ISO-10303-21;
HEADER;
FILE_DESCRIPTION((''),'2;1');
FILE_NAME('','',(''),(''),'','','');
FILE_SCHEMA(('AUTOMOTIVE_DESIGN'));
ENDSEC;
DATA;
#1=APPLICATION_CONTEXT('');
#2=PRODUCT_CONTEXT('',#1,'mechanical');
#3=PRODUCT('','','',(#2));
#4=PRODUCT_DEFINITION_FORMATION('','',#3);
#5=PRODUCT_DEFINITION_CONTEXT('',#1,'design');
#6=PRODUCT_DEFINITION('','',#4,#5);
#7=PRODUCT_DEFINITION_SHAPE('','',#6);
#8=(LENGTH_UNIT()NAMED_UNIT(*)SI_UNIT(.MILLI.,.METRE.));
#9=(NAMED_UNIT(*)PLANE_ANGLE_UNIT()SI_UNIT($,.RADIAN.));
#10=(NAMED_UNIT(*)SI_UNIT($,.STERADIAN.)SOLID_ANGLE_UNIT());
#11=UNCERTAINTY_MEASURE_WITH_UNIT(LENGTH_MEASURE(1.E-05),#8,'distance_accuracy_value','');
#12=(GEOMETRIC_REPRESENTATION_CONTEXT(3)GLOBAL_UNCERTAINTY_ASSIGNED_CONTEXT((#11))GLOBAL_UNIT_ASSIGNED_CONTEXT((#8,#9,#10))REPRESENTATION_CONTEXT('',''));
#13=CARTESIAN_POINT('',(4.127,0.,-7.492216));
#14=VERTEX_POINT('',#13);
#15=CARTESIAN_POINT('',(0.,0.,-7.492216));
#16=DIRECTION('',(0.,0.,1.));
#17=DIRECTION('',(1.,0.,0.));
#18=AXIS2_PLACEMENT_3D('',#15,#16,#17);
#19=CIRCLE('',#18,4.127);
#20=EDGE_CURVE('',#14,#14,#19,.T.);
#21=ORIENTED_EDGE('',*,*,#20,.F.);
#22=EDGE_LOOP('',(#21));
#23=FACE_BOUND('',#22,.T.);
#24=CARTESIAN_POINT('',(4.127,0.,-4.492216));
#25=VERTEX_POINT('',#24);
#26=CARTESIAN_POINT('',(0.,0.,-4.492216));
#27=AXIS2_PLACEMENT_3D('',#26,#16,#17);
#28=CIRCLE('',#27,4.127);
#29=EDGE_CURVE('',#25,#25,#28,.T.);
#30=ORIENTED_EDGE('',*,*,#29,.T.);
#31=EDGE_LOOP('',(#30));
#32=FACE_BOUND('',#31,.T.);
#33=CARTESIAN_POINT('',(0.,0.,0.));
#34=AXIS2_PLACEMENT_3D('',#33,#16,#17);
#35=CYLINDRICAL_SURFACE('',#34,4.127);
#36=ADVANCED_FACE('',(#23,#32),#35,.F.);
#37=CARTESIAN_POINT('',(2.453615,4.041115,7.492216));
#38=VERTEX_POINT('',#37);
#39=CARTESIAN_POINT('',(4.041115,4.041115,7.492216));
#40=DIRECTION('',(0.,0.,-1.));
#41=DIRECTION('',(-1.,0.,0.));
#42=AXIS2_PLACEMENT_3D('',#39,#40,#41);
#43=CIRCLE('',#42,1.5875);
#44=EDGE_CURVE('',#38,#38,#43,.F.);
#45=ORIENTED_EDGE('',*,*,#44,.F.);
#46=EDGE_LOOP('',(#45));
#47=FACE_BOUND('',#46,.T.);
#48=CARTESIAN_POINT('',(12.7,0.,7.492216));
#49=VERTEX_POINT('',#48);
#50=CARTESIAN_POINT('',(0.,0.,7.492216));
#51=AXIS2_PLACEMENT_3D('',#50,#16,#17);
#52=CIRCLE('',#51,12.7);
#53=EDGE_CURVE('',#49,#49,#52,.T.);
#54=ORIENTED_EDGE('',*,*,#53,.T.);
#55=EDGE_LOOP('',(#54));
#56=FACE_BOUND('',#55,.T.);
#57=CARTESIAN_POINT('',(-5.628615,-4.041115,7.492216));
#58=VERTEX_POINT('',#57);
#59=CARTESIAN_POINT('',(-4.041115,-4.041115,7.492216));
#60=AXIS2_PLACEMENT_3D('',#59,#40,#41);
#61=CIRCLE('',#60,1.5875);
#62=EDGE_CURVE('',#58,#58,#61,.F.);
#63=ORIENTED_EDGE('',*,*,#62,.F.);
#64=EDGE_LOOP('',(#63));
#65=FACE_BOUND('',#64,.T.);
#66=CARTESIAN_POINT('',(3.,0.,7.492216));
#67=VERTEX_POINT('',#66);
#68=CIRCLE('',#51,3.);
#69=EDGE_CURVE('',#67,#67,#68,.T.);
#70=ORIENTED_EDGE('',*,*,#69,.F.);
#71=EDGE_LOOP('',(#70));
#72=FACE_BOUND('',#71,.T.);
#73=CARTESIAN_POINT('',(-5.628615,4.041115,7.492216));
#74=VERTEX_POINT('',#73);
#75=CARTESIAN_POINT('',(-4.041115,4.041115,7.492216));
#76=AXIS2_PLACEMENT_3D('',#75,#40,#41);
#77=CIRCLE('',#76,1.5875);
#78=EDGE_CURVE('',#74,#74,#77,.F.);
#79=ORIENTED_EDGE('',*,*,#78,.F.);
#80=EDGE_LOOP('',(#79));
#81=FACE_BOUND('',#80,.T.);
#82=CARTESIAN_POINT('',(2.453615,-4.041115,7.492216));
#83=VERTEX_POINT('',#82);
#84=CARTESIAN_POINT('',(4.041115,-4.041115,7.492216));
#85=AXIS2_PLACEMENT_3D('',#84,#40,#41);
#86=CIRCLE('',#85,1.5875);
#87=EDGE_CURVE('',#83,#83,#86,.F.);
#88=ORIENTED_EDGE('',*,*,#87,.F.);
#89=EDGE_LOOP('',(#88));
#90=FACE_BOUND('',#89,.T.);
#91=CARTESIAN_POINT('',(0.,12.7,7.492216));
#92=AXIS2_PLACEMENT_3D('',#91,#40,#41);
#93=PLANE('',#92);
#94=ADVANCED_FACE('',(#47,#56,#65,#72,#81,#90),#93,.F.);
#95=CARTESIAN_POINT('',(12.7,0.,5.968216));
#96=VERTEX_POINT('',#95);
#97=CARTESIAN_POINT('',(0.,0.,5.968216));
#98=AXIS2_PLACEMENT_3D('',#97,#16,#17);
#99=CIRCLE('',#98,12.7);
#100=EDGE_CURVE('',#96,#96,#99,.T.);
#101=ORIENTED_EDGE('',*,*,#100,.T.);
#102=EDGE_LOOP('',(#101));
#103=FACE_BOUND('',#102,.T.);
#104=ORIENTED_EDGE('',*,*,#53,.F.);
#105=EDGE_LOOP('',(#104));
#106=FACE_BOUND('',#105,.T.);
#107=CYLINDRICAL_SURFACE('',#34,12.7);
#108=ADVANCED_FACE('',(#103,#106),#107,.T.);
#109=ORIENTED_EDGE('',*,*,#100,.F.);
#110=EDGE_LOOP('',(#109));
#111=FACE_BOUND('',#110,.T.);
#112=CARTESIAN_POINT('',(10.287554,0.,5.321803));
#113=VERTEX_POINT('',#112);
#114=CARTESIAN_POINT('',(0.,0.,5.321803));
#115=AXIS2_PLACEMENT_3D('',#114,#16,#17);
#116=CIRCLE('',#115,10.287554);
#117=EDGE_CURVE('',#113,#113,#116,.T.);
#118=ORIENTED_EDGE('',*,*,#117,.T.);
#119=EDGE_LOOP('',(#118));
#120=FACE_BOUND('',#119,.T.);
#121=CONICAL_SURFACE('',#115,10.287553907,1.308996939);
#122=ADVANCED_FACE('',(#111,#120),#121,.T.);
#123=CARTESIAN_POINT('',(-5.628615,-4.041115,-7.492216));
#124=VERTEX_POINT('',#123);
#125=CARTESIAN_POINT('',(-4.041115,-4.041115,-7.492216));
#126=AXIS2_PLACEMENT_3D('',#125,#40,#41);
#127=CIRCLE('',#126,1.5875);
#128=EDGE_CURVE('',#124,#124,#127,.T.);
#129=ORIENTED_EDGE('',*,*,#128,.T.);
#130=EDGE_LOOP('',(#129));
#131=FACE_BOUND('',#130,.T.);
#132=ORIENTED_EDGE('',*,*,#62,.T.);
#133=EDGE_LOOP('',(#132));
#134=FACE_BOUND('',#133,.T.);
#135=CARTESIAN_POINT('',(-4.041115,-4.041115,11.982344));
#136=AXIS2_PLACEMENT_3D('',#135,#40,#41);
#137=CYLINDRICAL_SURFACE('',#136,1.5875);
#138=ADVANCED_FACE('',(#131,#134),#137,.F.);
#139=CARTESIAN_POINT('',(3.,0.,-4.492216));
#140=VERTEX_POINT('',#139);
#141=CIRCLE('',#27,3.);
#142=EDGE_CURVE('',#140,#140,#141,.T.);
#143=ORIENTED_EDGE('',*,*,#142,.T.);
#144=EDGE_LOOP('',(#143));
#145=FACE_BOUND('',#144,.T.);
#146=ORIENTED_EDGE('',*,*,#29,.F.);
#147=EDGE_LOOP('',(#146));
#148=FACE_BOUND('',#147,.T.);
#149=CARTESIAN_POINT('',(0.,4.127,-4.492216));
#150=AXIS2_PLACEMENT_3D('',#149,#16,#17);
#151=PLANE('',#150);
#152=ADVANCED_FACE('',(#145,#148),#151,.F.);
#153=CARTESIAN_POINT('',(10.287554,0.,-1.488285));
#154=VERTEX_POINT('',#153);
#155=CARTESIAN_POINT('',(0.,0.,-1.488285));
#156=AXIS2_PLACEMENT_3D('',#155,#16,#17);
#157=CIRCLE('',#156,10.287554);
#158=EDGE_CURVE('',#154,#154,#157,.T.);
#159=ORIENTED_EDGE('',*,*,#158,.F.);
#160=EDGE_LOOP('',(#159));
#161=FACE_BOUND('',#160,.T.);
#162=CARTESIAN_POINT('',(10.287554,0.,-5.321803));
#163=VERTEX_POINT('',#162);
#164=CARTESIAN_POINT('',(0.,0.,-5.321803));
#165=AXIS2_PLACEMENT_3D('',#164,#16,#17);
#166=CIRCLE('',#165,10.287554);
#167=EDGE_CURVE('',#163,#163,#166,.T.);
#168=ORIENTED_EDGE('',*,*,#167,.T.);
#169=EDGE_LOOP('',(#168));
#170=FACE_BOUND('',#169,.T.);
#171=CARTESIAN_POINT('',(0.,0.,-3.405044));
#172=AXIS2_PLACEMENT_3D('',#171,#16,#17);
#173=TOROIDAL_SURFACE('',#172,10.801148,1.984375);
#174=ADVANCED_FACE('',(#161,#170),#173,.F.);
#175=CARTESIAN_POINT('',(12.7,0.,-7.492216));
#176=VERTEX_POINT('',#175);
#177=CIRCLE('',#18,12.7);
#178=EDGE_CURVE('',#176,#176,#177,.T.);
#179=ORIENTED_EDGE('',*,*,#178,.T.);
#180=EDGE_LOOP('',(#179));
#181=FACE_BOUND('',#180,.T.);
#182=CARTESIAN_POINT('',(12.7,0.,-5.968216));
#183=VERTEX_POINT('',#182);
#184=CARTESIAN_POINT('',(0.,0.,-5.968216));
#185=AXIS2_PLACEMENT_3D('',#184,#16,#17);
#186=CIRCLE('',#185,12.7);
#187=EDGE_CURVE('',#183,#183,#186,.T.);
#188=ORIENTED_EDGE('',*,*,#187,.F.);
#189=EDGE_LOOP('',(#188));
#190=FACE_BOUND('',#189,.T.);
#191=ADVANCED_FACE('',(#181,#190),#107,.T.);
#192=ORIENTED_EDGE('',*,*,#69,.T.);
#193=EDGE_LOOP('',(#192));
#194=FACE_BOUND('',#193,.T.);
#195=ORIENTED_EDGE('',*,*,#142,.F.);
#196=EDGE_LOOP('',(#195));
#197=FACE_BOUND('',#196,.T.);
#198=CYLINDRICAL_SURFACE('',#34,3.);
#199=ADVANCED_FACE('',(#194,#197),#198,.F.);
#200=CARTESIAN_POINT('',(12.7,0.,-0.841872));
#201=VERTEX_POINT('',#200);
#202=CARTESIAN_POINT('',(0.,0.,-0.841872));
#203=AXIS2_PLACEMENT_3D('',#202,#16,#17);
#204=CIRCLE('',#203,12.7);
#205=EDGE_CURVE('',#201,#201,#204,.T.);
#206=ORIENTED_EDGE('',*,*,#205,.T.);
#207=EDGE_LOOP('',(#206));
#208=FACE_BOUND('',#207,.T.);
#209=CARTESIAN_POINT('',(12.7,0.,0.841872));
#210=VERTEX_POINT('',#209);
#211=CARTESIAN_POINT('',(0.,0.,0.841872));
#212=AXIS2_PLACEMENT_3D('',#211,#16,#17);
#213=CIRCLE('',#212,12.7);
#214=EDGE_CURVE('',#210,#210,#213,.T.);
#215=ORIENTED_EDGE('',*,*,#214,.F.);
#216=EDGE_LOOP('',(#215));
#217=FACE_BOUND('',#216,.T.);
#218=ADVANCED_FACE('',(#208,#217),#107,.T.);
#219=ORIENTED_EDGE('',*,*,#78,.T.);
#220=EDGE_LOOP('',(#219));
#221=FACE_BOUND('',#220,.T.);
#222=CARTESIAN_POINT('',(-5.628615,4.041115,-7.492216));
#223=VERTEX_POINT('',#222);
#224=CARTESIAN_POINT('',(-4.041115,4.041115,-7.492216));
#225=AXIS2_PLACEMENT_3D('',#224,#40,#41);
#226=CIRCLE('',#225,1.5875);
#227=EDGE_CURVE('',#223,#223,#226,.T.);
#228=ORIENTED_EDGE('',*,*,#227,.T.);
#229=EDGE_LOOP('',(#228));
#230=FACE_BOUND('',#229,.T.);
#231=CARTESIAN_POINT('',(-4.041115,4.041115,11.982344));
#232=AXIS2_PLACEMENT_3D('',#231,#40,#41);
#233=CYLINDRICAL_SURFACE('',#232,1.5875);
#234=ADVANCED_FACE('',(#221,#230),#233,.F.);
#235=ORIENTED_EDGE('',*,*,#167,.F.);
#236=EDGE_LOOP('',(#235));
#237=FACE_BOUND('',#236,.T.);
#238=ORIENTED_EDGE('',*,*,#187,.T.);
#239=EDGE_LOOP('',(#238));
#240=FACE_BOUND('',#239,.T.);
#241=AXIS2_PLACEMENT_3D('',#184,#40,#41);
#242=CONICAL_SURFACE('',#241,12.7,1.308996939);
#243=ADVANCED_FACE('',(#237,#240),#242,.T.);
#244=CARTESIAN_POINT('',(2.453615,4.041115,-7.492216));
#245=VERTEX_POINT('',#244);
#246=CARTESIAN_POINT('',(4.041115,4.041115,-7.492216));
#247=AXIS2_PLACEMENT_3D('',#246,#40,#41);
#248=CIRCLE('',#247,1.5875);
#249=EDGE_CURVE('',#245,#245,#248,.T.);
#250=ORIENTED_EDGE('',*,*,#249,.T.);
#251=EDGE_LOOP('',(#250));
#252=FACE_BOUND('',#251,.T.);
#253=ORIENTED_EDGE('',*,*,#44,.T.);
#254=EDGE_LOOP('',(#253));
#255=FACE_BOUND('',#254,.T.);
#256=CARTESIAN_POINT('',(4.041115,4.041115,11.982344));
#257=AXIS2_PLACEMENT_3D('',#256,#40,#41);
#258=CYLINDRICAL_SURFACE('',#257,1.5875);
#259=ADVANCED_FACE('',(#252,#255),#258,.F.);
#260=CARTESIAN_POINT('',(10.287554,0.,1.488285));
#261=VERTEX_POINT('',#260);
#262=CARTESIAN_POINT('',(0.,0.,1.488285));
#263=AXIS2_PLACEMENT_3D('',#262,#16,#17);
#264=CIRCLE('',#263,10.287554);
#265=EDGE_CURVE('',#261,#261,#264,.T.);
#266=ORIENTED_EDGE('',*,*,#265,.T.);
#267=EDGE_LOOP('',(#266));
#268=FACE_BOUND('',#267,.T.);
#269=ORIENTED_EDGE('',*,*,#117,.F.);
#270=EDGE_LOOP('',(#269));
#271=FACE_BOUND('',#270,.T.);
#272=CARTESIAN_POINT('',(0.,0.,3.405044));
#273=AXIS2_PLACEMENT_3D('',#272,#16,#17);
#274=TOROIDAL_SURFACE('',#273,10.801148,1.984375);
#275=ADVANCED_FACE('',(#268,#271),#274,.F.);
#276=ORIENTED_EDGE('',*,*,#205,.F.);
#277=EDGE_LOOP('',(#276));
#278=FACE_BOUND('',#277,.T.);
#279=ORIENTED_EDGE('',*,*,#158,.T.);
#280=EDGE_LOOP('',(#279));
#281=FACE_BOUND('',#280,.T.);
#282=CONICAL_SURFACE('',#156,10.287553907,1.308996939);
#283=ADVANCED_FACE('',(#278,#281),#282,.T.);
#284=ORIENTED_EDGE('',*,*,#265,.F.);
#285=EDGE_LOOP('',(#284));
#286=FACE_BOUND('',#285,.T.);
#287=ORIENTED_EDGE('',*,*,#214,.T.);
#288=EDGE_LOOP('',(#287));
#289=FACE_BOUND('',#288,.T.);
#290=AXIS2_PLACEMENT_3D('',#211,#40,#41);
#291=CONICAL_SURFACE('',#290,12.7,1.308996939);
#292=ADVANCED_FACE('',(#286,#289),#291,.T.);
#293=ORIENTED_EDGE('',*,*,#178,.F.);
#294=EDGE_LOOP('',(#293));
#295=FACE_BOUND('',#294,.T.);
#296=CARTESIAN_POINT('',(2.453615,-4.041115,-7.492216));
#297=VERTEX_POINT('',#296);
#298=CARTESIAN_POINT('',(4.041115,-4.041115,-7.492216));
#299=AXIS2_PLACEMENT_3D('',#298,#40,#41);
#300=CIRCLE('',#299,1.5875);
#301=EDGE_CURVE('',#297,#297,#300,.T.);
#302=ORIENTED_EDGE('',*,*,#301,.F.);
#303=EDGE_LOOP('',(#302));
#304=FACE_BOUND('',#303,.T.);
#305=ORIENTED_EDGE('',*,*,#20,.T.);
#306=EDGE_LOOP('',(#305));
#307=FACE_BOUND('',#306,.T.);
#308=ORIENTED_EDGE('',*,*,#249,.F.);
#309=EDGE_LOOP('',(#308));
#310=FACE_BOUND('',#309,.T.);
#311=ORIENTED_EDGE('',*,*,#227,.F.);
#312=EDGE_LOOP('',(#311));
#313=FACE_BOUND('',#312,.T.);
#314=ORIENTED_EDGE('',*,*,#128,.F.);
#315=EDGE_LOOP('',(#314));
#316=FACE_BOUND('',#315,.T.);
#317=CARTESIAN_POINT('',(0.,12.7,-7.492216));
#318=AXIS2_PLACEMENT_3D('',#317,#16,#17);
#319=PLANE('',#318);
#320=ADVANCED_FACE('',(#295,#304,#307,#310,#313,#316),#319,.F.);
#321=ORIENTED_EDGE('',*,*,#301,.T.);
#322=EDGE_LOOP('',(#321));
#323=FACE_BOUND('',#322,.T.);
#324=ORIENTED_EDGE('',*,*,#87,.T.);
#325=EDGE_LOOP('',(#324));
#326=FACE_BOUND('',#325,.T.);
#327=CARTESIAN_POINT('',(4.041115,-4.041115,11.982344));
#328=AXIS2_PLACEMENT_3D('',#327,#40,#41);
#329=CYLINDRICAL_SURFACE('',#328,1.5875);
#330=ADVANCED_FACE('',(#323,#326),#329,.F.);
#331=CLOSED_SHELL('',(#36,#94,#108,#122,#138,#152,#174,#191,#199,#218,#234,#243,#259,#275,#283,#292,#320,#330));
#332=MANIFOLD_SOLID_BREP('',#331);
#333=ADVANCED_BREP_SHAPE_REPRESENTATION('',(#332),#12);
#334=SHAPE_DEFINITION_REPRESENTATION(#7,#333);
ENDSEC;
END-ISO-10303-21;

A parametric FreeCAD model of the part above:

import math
import FreeCAD as App
import Part
import Sketcher

V = App.Vector
Q = App.Units.Quantity

doc = App.newDocument("Part")
params = doc.addObject("Spreadsheet::Sheet", "Params")
for row, (alias, value) in enumerate([
    ("sketch1_radius", "0.078125 in"),
    ("sketch1_height", "0.06 in"),
    ("revolution_angle", "360 deg"),
    ("sketch2_diameter", "0.125 in"),
    ("pocket1_length", "14.984431 mm"),
], start=1):
    params.set(f"A{row}", alias)
    params.set(f"B{row}", "=" + value)
    params.setAlias(f"B{row}", alias)

body = doc.addObject("PartDesign::Body", "Body")

# Sketch on YZ plane
sketch1 = body.newObject("Sketcher::SketchObject", "Sketch")
sketch1.AttachmentSupport = (doc.getObject("YZ_Plane"), [""])
sketch1.MapMode = "FlatFace"
sketch1.addGeometry([
    Part.LineSegment(V(12.7, 0.8, 0), V(10.3, 1.5, 0)),  # 0
    Part.ArcOfCircle(Part.Circle(V(10.8, 3.4, 0), V(0, 0, 1), 2), math.radians(105), math.radians(255)),  # 1
    Part.LineSegment(V(10.3, 5.3, 0), V(12.7, 6, 0)),  # 2
    Part.LineSegment(V(12.7, 6, 0), V(12.7, 7.5, 0)),  # 3
    Part.LineSegment(V(12.7, 7.5, 0), V(3, 7.5, 0)),  # 4
    Part.LineSegment(V(3, 7.5, 0), V(3, -4.5, 0)),  # 5
    Part.LineSegment(V(3, -4.5, 0), V(4.1, -4.5, 0)),  # 6
    Part.LineSegment(V(4.1, -4.5, 0), V(4.1, -7.5, 0)),  # 7
    Part.LineSegment(V(4.1, -7.5, 0), V(12.7, -7.5, 0)),  # 8
    Part.LineSegment(V(12.7, -7.5, 0), V(12.7, -6, 0)),  # 9
    Part.LineSegment(V(12.7, -6, 0), V(10.3, -5.3, 0)),  # 10
    Part.ArcOfCircle(Part.Circle(V(10.8, -3.4, 0), V(0, 0, 1), 2), math.radians(105), math.radians(255)),  # 11
    Part.LineSegment(V(10.3, -1.5, 0), V(12.7, -0.8, 0)),  # 12
    Part.LineSegment(V(12.7, -0.8, 0), V(12.7, 0.8, 0)),  # 13
], False)
sketch1.addConstraint([
    Sketcher.Constraint("Tangent", 0, 2, 1, 2),
    Sketcher.Constraint("Tangent", 1, 1, 2, 1),
    Sketcher.Constraint("Coincident", 2, 2, 3, 1),
    Sketcher.Constraint("Coincident", 3, 2, 4, 1),
    Sketcher.Constraint("Coincident", 4, 2, 5, 1),
    Sketcher.Constraint("Coincident", 5, 2, 6, 1),
    Sketcher.Constraint("Coincident", 6, 2, 7, 1),
    Sketcher.Constraint("Coincident", 7, 2, 8, 1),
    Sketcher.Constraint("Coincident", 8, 2, 9, 1),
    Sketcher.Constraint("Coincident", 9, 2, 10, 1),
    Sketcher.Constraint("Tangent", 10, 2, 11, 2),
    Sketcher.Constraint("Tangent", 11, 1, 12, 1),
    Sketcher.Constraint("Coincident", 12, 2, 13, 1),
    Sketcher.Constraint("Coincident", 13, 2, 0, 1),
    Sketcher.Constraint("Vertical", 3),
    Sketcher.Constraint("Horizontal", 4),
    Sketcher.Constraint("Vertical", 5),
    Sketcher.Constraint("Horizontal", 6),
    Sketcher.Constraint("Vertical", 7),
    Sketcher.Constraint("Horizontal", 8),
    Sketcher.Constraint("Vertical", 9),
    Sketcher.Constraint("Vertical", 13),
    Sketcher.Constraint("Equal", 1, 11),
    Sketcher.Constraint("Symmetric", 1, 3, 11, 3, -1),
    Sketcher.Constraint("Symmetric", 3, 2, 8, 2, -1),
    Sketcher.Constraint("Parallel", 0, 10),
    Sketcher.Constraint("Parallel", 2, 12),
    Sketcher.Constraint("Vertical", 0, 2, 1, 1),
    Sketcher.Constraint("Vertical", 9, 2, 12, 2),
    Sketcher.Constraint("Angle", 0, Q("165 deg")),
    Sketcher.Constraint("Radius", 1, Q("0.078125 in")),
    Sketcher.Constraint("DistanceY", 3, 1, 3, 2, Q("0.06 in")),
    Sketcher.Constraint("DistanceX", -1, 1, 2, 2, Q("0.5 in")),
    Sketcher.Constraint("DistanceX", 4, 2, 4, 1, 9.7),
    Sketcher.Constraint("DistanceX", 6, 1, 6, 2, 1.127),
    Sketcher.Constraint("DistanceY", 7, 2, 7, 1, 3.0),
    Sketcher.Constraint("DistanceY", 5, 2, 5, 1, 11.984431),
    Sketcher.Constraint("DistanceY", 5, 2, 0, 2, 5.9805),
])
sketch1.setExpression("Constraints[30]", "Params.sketch1_radius")
sketch1.setExpression("Constraints[31]", "Params.sketch1_height")
revolution = body.newObject("PartDesign::Revolution", "Revolution")
revolution.Profile = sketch1
revolution.ReferenceAxis = (sketch1, ["V_Axis"])
revolution.setExpression("Angle", "Params.revolution_angle")

# Sketch on XY plane
sketch2 = body.newObject("Sketcher::SketchObject", "Sketch001")
sketch2.AttachmentSupport = (doc.getObject("XY_Plane"), [""])
sketch2.MapMode = "FlatFace"
sketch2.AttachmentOffset = App.Placement(V(0, 0, -7.492216), App.Rotation())
sketch2.addGeometry([
    Part.Circle(V(-4, 4, 0), V(0, 0, 1), 1.6),
    Part.Circle(V(4, 4, 0), V(0, 0, 1), 1.6),
    Part.Circle(V(4, -4, 0), V(0, 0, 1), 1.6),
    Part.Circle(V(-4, -4, 0), V(0, 0, 1), 1.6),
], False)
sketch2.addConstraint([
    Sketcher.Constraint("Equal", 0, 1),
    Sketcher.Constraint("Equal", 1, 2),
    Sketcher.Constraint("Equal", 2, 3),
    Sketcher.Constraint("Symmetric", 0, 3, 2, 3, -1, 1),
    Sketcher.Constraint("Symmetric", 1, 3, 3, 3, -1, 1),
    Sketcher.Constraint("Symmetric", 0, 3, 1, 3, -2),
    Sketcher.Constraint("Diameter", 0, Q("0.125 in")),
    Sketcher.Constraint("DistanceX", 0, 3, 1, 3, 8.082231),
    Sketcher.Constraint("DistanceY", 2, 3, 1, 3, 8.082231),
])
sketch2.setExpression("Constraints[6]", "Params.sketch2_diameter")
pocket1 = body.newObject("PartDesign::Pocket", "Pocket")
pocket1.Profile = sketch2
pocket1.setExpression("Length", "Params.pocket1_length")
pocket1.Reversed = True

doc.recompute()
